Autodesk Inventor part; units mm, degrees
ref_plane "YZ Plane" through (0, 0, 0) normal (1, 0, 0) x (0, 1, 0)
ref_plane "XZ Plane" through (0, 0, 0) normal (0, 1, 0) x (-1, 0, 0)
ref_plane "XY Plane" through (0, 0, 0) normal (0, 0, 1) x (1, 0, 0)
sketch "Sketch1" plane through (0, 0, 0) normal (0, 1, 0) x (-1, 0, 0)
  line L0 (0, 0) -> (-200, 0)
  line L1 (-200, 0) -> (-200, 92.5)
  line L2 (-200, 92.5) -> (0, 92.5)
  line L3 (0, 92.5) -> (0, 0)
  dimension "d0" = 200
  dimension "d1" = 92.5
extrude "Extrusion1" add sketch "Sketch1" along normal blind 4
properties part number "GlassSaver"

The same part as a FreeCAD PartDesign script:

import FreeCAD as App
import Part
import Sketcher
from FreeCAD import Vector


def add_polygon(sketch, points):
    """Adds a closed chain of lines whose ends are joined by coincident constraints."""
    first, n = sketch.GeometryCount, len(points)
    for a, b in zip(points, points[1:] + points[:1]):
        sketch.addGeometry(Part.LineSegment(App.Vector(*a, 0), App.Vector(*b, 0)), False)
    for i in range(n):
        sketch.addConstraint(Sketcher.Constraint("Coincident", first + i, 2, first + (i + 1) % n, 1))

doc = App.newDocument("Part")
body = doc.addObject("PartDesign::Body", "Body")

# Sketch on XZ plane
sketch1 = body.newObject("Sketcher::SketchObject", "Sketch")
sketch1.AttachmentSupport = (doc.getObject("XZ_Plane"), [""])
sketch1.MapMode = "FlatFace"
add_polygon(sketch1, [(200, 0), (0, 0), (0, 92), (200, 92)])  # lines 0-3
sketch1.addConstraint([
    Sketcher.Constraint("Horizontal", 0),
    Sketcher.Constraint("Vertical", 1),
    Sketcher.Constraint("Horizontal", 2),
    Sketcher.Constraint("Vertical", 3),
    Sketcher.Constraint("Coincident", 0, 2, -1, 1),
    Sketcher.Constraint("DistanceX", 0, 2, 0, 1, 200.0),
    Sketcher.Constraint("DistanceY", 1, 1, 1, 2, 92.5),
])
pad1 = body.newObject("PartDesign::Pad", "Pad")
pad1.Profile = sketch1
pad1.Length = 4
pad1.Reversed = True

doc.recompute()
